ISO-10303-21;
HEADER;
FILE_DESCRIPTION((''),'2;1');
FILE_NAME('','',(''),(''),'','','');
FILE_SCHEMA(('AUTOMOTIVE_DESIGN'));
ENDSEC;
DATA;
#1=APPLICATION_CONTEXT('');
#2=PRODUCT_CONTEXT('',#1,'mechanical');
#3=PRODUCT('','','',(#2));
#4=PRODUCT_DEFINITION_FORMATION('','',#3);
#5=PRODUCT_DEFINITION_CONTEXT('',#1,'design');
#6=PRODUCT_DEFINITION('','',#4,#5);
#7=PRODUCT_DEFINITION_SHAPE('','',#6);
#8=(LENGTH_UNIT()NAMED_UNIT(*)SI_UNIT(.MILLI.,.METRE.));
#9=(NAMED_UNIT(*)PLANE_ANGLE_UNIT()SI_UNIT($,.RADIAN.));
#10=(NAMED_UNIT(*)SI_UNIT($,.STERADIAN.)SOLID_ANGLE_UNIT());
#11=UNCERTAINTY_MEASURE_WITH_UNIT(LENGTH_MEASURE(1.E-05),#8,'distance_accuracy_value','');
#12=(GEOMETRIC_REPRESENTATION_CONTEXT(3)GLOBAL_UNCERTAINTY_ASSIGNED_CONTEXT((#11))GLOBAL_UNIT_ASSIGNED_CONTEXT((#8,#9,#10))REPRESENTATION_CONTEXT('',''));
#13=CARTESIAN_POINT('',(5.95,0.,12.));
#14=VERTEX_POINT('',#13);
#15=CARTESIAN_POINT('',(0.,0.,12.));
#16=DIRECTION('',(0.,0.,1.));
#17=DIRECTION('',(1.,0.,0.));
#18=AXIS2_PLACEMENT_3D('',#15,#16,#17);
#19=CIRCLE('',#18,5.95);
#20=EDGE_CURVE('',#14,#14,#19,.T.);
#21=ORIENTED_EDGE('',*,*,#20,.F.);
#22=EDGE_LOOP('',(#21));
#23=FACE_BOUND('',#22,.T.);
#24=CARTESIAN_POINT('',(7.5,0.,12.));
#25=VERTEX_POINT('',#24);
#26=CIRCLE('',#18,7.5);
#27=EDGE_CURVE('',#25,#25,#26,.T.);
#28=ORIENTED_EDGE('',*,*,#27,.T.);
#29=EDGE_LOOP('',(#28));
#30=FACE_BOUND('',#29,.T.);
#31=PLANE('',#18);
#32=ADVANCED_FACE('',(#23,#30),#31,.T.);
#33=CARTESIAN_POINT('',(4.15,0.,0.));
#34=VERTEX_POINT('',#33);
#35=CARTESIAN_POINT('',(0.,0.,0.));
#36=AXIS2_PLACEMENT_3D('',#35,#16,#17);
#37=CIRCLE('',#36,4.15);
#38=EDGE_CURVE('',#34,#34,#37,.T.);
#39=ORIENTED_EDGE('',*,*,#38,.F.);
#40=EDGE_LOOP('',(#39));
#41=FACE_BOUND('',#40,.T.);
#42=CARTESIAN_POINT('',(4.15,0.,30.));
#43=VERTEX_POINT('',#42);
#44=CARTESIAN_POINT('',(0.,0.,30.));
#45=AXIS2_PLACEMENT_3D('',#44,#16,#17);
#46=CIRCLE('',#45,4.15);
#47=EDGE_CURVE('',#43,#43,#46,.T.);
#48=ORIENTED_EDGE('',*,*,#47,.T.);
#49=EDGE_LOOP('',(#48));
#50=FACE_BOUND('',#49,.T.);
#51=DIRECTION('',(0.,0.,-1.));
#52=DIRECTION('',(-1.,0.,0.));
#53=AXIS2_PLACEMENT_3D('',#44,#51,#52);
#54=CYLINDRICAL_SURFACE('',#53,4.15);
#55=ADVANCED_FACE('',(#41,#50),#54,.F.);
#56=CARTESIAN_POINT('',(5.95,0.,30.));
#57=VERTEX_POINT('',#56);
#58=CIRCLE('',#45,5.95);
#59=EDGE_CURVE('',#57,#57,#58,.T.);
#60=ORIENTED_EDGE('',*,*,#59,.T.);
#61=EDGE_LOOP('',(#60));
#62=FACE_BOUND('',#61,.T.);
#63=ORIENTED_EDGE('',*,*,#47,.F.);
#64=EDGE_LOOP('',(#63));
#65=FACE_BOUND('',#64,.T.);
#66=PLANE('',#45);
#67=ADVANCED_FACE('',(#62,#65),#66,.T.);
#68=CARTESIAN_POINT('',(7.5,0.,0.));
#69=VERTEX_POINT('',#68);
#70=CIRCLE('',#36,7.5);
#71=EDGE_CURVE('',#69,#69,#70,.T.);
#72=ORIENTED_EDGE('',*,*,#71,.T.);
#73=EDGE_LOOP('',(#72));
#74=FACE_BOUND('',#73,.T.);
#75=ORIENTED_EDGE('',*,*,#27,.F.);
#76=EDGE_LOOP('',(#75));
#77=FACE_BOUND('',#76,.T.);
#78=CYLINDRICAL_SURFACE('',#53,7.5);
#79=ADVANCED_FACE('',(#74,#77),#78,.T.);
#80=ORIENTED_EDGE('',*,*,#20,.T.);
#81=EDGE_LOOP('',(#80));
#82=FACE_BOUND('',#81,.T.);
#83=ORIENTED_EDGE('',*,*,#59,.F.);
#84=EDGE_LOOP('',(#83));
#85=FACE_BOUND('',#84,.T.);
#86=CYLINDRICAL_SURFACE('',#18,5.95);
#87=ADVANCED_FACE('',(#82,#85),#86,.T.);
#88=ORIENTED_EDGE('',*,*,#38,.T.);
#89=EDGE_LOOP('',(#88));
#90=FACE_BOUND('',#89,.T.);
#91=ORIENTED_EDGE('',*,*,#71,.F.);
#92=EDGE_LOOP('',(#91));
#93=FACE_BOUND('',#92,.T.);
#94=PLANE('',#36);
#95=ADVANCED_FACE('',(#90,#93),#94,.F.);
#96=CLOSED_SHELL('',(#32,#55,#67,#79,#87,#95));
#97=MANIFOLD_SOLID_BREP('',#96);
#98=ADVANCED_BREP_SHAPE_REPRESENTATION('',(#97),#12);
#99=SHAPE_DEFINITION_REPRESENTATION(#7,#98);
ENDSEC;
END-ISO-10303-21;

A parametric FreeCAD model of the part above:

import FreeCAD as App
import Part
import Sketcher
Q = App.Units.Quantity

doc = App.newDocument("Part")
body = doc.addObject("PartDesign::Body", "Body")

# Sketch on XY plane
sketch1 = doc.addObject("Sketcher::SketchObject", "Sketch")
body.addObject(sketch1)
sketch1.AttachmentSupport = (doc.XY_Plane, [""])
sketch1.MapMode = "FlatFace"
sketch1.addGeometry(Part.Circle(App.Vector(0, 0, 0), App.Vector(0, 0, 1), 7.5), False)
sketch1.addGeometry(Part.Circle(App.Vector(0, 0, 0), App.Vector(0, 0, 1), 4.2), False)
sketch1.addConstraint(Sketcher.Constraint("Coincident", 0, 3, -1, 1))
sketch1.addConstraint(Sketcher.Constraint("Coincident", 1, 3, -1, 1))
sketch1.addConstraint(Sketcher.Constraint("Diameter", 0, Q("15 mm")))
sketch1.addConstraint(Sketcher.Constraint("Diameter", 1, Q("8.3 mm")))
pad1 = doc.addObject("PartDesign::Pad", "Pad")
body.addObject(pad1)
pad1.Profile = sketch1
pad1.Length = 30

# Sketch on XY plane
sketch2 = doc.addObject("Sketcher::SketchObject", "Sketch001")
body.addObject(sketch2)
sketch2.AttachmentSupport = (doc.XY_Plane, [""])
sketch2.MapMode = "FlatFace"
sketch2.AttachmentOffset = App.Placement(App.Vector(0, 0, 12), App.Rotation())
sketch2.addGeometry(Part.Circle(App.Vector(0, 0, 0), App.Vector(0, 0, 1), 8), False)
sketch2.addGeometry(Part.Circle(App.Vector(0, 0, 0), App.Vector(0, 0, 1), 6), False)
sketch2.addConstraint(Sketcher.Constraint("Coincident", 0, 3, -1, 1))
sketch2.addConstraint(Sketcher.Constraint("Coincident", 1, 3, -1, 1))
sketch2.addConstraint(Sketcher.Constraint("Diameter", 0, Q("15 mm")))
sketch2.addConstraint(Sketcher.Constraint("Diameter", 1, Q("11.9 mm")))
pocket1 = doc.addObject("PartDesign::Pocket", "Pocket")
body.addObject(pocket1)
pocket1.Profile = sketch2
pocket1.Length = 18
pocket1.Reversed = True

doc.recompute()
